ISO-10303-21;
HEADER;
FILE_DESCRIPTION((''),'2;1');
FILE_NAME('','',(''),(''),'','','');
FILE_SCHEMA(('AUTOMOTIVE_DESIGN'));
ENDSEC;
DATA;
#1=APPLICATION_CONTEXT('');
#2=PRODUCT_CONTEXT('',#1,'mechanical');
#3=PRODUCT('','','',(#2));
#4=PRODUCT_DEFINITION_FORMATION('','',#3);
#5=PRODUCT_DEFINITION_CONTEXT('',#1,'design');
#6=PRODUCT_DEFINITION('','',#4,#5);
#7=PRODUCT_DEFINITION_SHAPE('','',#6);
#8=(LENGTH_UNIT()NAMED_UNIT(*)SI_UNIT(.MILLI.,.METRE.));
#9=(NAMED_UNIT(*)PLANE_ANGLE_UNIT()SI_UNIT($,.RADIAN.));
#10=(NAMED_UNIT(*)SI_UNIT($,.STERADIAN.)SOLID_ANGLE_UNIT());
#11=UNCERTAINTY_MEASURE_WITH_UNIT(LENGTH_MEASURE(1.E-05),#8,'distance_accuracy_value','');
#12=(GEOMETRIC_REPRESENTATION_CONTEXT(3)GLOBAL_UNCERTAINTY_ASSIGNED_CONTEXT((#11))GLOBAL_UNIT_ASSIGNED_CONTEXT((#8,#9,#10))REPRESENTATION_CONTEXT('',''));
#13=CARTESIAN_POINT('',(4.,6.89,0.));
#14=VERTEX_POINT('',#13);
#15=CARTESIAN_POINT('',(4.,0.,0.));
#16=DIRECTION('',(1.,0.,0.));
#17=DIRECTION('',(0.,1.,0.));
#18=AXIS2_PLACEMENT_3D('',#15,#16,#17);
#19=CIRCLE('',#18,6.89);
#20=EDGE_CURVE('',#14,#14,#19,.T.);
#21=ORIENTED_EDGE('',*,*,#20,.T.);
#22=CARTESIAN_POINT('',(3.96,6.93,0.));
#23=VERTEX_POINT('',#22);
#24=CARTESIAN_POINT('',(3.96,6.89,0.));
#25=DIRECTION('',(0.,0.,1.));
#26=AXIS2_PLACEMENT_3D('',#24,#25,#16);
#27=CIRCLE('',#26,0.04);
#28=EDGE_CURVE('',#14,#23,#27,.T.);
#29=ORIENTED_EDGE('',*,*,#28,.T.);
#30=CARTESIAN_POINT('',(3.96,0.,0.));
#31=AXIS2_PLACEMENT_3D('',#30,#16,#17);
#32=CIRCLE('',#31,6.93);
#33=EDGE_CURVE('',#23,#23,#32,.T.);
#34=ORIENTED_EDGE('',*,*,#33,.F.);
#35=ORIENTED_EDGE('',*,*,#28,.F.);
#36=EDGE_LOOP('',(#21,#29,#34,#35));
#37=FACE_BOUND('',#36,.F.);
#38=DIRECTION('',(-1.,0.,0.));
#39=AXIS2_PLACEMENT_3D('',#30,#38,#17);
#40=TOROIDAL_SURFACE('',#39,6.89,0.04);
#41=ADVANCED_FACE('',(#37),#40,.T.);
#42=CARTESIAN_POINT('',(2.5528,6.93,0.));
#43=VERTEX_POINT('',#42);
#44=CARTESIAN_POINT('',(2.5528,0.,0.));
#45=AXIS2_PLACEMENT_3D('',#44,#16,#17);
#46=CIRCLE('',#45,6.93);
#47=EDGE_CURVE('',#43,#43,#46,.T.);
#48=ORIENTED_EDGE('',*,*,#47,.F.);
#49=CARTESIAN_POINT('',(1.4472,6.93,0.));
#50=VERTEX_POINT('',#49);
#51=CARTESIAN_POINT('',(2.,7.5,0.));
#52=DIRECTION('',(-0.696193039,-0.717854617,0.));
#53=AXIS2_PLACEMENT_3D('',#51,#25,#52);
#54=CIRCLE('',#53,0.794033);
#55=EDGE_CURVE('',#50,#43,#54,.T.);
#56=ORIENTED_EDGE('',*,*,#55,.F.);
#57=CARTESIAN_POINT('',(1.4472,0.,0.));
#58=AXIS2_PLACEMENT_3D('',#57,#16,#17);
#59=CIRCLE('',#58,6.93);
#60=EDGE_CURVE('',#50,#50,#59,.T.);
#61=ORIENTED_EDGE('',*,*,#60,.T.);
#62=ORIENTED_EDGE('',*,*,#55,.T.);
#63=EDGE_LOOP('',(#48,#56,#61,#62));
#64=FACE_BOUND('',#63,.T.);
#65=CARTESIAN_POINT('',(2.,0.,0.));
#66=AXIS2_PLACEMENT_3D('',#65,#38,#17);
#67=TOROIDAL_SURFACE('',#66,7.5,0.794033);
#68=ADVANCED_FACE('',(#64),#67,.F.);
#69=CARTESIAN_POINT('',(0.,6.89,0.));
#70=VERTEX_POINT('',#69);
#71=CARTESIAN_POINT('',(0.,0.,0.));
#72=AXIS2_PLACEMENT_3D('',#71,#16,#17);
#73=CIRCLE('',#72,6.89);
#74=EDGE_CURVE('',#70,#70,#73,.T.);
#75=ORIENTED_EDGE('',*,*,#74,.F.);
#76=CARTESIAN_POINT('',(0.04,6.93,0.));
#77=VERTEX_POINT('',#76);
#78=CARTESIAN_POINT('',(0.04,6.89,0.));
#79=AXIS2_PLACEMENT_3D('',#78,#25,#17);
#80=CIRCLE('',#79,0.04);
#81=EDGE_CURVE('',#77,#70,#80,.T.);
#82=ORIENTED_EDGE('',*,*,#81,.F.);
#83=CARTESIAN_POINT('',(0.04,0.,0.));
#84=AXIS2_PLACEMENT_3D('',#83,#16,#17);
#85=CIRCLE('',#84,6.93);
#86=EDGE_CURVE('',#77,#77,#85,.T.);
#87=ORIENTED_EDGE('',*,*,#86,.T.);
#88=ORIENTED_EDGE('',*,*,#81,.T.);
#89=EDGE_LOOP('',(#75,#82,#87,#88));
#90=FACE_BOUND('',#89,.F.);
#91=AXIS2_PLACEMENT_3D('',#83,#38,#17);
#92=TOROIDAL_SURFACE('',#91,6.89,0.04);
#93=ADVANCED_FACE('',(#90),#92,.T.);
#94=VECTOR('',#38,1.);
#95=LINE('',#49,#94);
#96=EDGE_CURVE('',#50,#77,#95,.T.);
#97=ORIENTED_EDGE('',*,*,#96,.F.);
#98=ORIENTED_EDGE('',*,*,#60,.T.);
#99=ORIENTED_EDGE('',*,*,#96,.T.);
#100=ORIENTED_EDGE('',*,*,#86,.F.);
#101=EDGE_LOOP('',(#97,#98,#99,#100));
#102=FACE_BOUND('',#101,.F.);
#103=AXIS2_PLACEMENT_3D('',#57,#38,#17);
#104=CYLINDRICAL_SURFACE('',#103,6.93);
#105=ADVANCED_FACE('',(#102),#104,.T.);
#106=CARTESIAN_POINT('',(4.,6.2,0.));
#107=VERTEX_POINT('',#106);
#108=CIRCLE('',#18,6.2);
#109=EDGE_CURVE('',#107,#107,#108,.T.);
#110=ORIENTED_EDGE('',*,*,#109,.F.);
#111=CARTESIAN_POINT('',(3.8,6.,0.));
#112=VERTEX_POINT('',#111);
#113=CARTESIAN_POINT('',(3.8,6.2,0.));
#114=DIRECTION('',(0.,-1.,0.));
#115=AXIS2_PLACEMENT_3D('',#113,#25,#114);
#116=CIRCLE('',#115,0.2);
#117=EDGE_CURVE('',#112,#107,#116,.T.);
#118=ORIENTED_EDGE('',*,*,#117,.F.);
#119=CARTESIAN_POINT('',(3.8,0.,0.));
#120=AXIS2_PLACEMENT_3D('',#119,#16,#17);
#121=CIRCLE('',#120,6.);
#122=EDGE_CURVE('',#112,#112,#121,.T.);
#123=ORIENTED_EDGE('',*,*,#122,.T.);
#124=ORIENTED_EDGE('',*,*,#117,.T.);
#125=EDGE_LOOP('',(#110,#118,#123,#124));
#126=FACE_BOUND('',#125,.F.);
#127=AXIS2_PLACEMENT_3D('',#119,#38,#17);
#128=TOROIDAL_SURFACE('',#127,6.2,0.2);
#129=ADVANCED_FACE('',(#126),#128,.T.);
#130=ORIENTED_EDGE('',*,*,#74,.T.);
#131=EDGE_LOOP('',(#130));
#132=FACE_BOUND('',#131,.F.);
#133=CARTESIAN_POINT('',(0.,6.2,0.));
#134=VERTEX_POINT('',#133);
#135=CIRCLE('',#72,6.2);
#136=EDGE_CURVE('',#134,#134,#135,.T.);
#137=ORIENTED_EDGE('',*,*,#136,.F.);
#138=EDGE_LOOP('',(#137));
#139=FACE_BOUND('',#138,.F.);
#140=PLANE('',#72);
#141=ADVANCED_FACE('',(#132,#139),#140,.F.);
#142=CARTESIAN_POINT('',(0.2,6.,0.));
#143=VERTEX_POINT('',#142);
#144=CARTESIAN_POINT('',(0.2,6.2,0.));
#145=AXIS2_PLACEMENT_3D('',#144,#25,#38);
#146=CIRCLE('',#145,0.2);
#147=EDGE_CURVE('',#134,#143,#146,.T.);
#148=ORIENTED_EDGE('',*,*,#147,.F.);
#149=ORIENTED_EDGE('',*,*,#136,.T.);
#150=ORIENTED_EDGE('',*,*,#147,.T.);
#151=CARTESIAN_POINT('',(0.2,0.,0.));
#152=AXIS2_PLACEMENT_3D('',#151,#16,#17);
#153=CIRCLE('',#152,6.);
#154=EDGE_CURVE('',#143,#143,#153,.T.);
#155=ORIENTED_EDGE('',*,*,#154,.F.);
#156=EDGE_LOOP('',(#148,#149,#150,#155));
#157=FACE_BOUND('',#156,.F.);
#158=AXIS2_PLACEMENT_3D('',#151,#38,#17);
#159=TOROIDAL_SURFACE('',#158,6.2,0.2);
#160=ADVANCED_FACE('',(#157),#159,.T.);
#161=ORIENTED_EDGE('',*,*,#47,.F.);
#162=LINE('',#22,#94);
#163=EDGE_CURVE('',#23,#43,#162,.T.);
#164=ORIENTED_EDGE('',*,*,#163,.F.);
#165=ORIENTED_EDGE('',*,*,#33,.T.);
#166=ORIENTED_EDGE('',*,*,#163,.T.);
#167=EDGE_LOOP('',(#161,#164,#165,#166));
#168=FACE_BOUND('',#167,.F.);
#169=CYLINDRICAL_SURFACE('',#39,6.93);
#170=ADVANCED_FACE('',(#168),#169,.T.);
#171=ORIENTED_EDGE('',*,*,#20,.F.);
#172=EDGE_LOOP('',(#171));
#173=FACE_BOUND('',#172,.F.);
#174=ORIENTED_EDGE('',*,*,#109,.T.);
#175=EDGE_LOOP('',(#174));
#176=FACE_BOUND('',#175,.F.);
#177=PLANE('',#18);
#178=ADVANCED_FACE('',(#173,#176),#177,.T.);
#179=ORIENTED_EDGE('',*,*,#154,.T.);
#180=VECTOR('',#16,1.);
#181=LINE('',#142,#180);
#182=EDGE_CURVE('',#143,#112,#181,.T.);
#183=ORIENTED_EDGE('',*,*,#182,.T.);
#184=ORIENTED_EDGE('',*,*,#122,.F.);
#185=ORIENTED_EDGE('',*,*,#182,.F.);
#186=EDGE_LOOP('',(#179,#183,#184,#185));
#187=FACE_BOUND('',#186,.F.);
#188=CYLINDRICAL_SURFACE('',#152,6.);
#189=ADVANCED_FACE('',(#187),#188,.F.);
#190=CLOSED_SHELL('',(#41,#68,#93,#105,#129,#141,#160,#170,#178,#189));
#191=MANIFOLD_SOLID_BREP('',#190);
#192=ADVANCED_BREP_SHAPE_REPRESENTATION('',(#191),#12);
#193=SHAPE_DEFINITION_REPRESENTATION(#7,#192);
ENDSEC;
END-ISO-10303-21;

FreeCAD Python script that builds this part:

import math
import FreeCAD as App
import Part
import Sketcher
from FreeCAD import Vector
Q = App.Units.Quantity

doc = App.newDocument("Part")
params = doc.addObject("Spreadsheet::Sheet", "Params")
for row, (alias, value) in enumerate([
    ("sketch1_radius", "0.2 mm"),
    ("sketch1_radius2", "0.04 mm"),
    ("sketch1_width", "3.6 mm"),
    ("sketch1_height", "0.69 mm"),
    ("revolution_angle", "360 deg"),
], start=1):
    params.set(f"A{row}", alias)
    params.set(f"B{row}", "=" + value)
    params.setAlias(f"B{row}", alias)

body = doc.addObject("PartDesign::Body", "Body")

# Sketch on XY plane
sketch1 = body.newObject("Sketcher::SketchObject", "Sketch")
sketch1.AttachmentSupport = (doc.getObject("XY_Plane"), [""])
sketch1.MapMode = "FlatFace"
sketch1.addGeometry(Part.ArcOfCircle(Part.Circle(Vector(0.04, 6.89, 0), Vector(0, 0, 1), 0.04), math.radians(90), math.radians(180)), False)
sketch1.addGeometry(Part.LineSegment(Vector(0, 6.89, 0), Vector(0, 6.2, 0)), False)
sketch1.addGeometry(Part.ArcOfCircle(Part.Circle(Vector(0.2, 6.2, 0), Vector(0, 0, 1), 0.2), math.radians(180), math.radians(270)), False)
sketch1.addGeometry(Part.LineSegment(Vector(0.2, 6, 0), Vector(3.8, 6, 0)), False)
sketch1.addGeometry(Part.ArcOfCircle(Part.Circle(Vector(3.8, 6.2, 0), Vector(0, 0, 1), 0.2), math.radians(-90), math.radians(0)), False)
sketch1.addGeometry(Part.LineSegment(Vector(4, 6.2, 0), Vector(4, 6.89, 0)), False)
sketch1.addGeometry(Part.ArcOfCircle(Part.Circle(Vector(3.96, 6.89, 0), Vector(0, 0, 1), 0.04), math.radians(0), math.radians(90)), False)
sketch1.addGeometry(Part.LineSegment(Vector(3.96, 6.93, 0), Vector(2.553, 6.93, 0)), False)
sketch1.addGeometry(Part.ArcOfCircle(Part.Circle(Vector(2, 7.5, 0), Vector(0, 0, 1), 0.794), math.radians(-134), math.radians(-46)), False)
sketch1.addGeometry(Part.LineSegment(Vector(1.447, 6.93, 0), Vector(0.04, 6.93, 0)), False)
sketch1.addConstraint(Sketcher.Constraint("Tangent", 0, 2, 1, 1))
sketch1.addConstraint(Sketcher.Constraint("Tangent", 1, 2, 2, 1))
sketch1.addConstraint(Sketcher.Constraint("Tangent", 2, 2, 3, 1))
sketch1.addConstraint(Sketcher.Constraint("Tangent", 3, 2, 4, 1))
sketch1.addConstraint(Sketcher.Constraint("Tangent", 4, 2, 5, 1))
sketch1.addConstraint(Sketcher.Constraint("Tangent", 5, 2, 6, 1))
sketch1.addConstraint(Sketcher.Constraint("Tangent", 6, 2, 7, 1))
sketch1.addConstraint(Sketcher.Constraint("Coincident", 7, 2, 8, 2))
sketch1.addConstraint(Sketcher.Constraint("Coincident", 8, 1, 9, 1))
sketch1.addConstraint(Sketcher.Constraint("Tangent", 9, 2, 0, 1))
sketch1.addConstraint(Sketcher.Constraint("Vertical", 1))
sketch1.addConstraint(Sketcher.Constraint("Horizontal", 3))
sketch1.addConstraint(Sketcher.Constraint("Vertical", 5))
sketch1.addConstraint(Sketcher.Constraint("Horizontal", 7))
sketch1.addConstraint(Sketcher.Constraint("Horizontal", 9))
sketch1.addConstraint(Sketcher.Constraint("Equal", 2, 4))
sketch1.addConstraint(Sketcher.Constraint("Equal", 0, 6))
sketch1.addConstraint(Sketcher.Constraint("PointOnObject", 0, 2, -2))
sketch1.addConstraint(Sketcher.Constraint("Horizontal", 0, 3, 6, 3))
sketch1.addConstraint(Sketcher.Constraint("Equal", 7, 9))
sketch1.addConstraint(Sketcher.Constraint("Radius", 2, Q("0.2 mm")))
sketch1.addConstraint(Sketcher.Constraint("Radius", 0, Q("0.04 mm")))
sketch1.addConstraint(Sketcher.Constraint("DistanceX", 3, 1, 3, 2, Q("3.6 mm")))
sketch1.addConstraint(Sketcher.Constraint("DistanceY", -1, 1, 2, 2, Q("6 mm")))
sketch1.addConstraint(Sketcher.Constraint("Radius", 8, Q("0.794 mm")))
sketch1.addConstraint(Sketcher.Constraint("DistanceY", 1, 2, 1, 1, Q("0.69 mm")))
sketch1.addConstraint(Sketcher.Constraint("DistanceY", -1, 1, 8, 3, Q("7.5 mm")))
sketch1.setExpression("Constraints[20]", "Params.sketch1_radius")
sketch1.setExpression("Constraints[21]", "Params.sketch1_radius2")
sketch1.setExpression("Constraints[22]", "Params.sketch1_width")
sketch1.setExpression("Constraints[25]", "Params.sketch1_height")
revolution = body.newObject("PartDesign::Revolution", "Revolution")
revolution.Profile = sketch1
revolution.ReferenceAxis = (sketch1, ["H_Axis"])
revolution.setExpression("Angle", "Params.revolution_angle")

doc.recompute()
